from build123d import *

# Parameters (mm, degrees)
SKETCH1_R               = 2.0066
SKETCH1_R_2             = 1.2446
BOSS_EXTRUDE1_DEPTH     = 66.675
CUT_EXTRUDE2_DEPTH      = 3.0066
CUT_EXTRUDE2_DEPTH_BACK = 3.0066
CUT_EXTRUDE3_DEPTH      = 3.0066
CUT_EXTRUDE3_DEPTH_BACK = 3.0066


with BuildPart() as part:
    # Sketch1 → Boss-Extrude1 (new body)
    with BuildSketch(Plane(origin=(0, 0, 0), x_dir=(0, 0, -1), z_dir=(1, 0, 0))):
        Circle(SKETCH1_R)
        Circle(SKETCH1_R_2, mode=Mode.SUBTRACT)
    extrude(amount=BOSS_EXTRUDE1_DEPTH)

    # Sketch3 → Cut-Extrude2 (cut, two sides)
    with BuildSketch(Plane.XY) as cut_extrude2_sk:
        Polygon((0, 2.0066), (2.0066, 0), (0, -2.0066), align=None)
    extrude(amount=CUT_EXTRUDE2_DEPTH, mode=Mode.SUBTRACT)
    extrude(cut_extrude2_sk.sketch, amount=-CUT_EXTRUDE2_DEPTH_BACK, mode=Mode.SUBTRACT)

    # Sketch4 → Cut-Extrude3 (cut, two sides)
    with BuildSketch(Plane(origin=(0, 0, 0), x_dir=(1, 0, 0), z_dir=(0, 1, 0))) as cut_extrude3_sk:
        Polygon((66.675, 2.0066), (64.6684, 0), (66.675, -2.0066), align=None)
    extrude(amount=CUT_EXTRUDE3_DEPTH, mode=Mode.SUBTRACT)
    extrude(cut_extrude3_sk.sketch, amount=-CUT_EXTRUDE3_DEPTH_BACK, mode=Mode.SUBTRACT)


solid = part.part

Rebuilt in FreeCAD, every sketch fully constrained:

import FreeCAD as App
import Part
import Sketcher

V = App.Vector
Q = App.Units.Quantity


def add_polygon(sketch, points):
    """Adds a closed chain of lines whose ends are joined by coincident constraints."""
    first, n = sketch.GeometryCount, len(points)
    for a, b in zip(points, points[1:] + points[:1]):
        sketch.addGeometry(Part.LineSegment(App.Vector(*a, 0), App.Vector(*b, 0)), False)
    for i in range(n):
        sketch.addConstraint(Sketcher.Constraint("Coincident", first + i, 2, first + (i + 1) % n, 1))

doc = App.newDocument("Part")
body = doc.addObject("PartDesign::Body", "Body")

# Sketch on YZ plane
sketch1 = body.newObject("Sketcher::SketchObject", "Sketch")
sketch1.AttachmentSupport = (doc.getObject("YZ_Plane"), [""])
sketch1.MapMode = "FlatFace"
sketch1.addGeometry([
    Part.Circle(V(0, 0, 0), V(0, 0, 1), 2.0066),
    Part.Circle(V(0, 0, 0), V(0, 0, 1), 1.2446),
], False)
sketch1.addConstraint([
    Sketcher.Constraint("Coincident", 0, 3, -1, 1),
    Sketcher.Constraint("Coincident", 1, 3, -1, 1),
    Sketcher.Constraint("Diameter", 0, Q("0.158 in")),
    Sketcher.Constraint("Diameter", 1, Q("0.098 in")),
])
pad1 = body.newObject("PartDesign::Pad", "Pad")
pad1.Profile = sketch1
pad1.Length = Q("2.625 in")

# Sketch on XY plane
sketch2 = body.newObject("Sketcher::SketchObject", "Sketch001")
sketch2.AttachmentSupport = (doc.getObject("XY_Plane"), [""])
sketch2.MapMode = "FlatFace"
add_polygon(sketch2, [(2.0066, 0), (0, 2.0066), (0, -2.0066)])  # lines 0-2
sketch2.addConstraint([
    Sketcher.Constraint("Vertical", 1),
    Sketcher.Constraint("Symmetric", 0, 2, 1, 2, -1, 1),
    Sketcher.Constraint("PointOnObject", 2, 2, -1),
    Sketcher.Constraint("Perpendicular", 0, 2),
    Sketcher.Constraint("DistanceY", 1, 2, 1, 1, Q("0.158 in")),
])
pocket1 = body.newObject("PartDesign::Pocket", "Pocket")
pocket1.Profile = sketch2
pocket1.Type = "ThroughAll"
pocket1.Midplane = True

# Sketch on XZ plane
sketch3 = body.newObject("Sketcher::SketchObject", "Sketch002")
sketch3.AttachmentSupport = (doc.getObject("XZ_Plane"), [""])
sketch3.MapMode = "FlatFace"
add_polygon(sketch3, [(66.675, -2.0066), (64.6684, 0), (66.675, 2.0066)])  # lines 0-2
sketch3.addConstraint([
    Sketcher.Constraint("Vertical", 2),
    Sketcher.Constraint("PointOnObject", 0, 2, -1),
    Sketcher.Constraint("Perpendicular", 0, 1),
    Sketcher.Constraint("Equal", 0, 1),
    Sketcher.Constraint("DistanceY", 2, 2, 2, 1, Q("0.158 in")),
    Sketcher.Constraint("DistanceX", -1, 1, 0, 2, Q("2.546 in")),
])
pocket2 = body.newObject("PartDesign::Pocket", "Pocket001")
pocket2.Profile = sketch3
pocket2.Type = "ThroughAll"
pocket2.Midplane = True

doc.recompute()
